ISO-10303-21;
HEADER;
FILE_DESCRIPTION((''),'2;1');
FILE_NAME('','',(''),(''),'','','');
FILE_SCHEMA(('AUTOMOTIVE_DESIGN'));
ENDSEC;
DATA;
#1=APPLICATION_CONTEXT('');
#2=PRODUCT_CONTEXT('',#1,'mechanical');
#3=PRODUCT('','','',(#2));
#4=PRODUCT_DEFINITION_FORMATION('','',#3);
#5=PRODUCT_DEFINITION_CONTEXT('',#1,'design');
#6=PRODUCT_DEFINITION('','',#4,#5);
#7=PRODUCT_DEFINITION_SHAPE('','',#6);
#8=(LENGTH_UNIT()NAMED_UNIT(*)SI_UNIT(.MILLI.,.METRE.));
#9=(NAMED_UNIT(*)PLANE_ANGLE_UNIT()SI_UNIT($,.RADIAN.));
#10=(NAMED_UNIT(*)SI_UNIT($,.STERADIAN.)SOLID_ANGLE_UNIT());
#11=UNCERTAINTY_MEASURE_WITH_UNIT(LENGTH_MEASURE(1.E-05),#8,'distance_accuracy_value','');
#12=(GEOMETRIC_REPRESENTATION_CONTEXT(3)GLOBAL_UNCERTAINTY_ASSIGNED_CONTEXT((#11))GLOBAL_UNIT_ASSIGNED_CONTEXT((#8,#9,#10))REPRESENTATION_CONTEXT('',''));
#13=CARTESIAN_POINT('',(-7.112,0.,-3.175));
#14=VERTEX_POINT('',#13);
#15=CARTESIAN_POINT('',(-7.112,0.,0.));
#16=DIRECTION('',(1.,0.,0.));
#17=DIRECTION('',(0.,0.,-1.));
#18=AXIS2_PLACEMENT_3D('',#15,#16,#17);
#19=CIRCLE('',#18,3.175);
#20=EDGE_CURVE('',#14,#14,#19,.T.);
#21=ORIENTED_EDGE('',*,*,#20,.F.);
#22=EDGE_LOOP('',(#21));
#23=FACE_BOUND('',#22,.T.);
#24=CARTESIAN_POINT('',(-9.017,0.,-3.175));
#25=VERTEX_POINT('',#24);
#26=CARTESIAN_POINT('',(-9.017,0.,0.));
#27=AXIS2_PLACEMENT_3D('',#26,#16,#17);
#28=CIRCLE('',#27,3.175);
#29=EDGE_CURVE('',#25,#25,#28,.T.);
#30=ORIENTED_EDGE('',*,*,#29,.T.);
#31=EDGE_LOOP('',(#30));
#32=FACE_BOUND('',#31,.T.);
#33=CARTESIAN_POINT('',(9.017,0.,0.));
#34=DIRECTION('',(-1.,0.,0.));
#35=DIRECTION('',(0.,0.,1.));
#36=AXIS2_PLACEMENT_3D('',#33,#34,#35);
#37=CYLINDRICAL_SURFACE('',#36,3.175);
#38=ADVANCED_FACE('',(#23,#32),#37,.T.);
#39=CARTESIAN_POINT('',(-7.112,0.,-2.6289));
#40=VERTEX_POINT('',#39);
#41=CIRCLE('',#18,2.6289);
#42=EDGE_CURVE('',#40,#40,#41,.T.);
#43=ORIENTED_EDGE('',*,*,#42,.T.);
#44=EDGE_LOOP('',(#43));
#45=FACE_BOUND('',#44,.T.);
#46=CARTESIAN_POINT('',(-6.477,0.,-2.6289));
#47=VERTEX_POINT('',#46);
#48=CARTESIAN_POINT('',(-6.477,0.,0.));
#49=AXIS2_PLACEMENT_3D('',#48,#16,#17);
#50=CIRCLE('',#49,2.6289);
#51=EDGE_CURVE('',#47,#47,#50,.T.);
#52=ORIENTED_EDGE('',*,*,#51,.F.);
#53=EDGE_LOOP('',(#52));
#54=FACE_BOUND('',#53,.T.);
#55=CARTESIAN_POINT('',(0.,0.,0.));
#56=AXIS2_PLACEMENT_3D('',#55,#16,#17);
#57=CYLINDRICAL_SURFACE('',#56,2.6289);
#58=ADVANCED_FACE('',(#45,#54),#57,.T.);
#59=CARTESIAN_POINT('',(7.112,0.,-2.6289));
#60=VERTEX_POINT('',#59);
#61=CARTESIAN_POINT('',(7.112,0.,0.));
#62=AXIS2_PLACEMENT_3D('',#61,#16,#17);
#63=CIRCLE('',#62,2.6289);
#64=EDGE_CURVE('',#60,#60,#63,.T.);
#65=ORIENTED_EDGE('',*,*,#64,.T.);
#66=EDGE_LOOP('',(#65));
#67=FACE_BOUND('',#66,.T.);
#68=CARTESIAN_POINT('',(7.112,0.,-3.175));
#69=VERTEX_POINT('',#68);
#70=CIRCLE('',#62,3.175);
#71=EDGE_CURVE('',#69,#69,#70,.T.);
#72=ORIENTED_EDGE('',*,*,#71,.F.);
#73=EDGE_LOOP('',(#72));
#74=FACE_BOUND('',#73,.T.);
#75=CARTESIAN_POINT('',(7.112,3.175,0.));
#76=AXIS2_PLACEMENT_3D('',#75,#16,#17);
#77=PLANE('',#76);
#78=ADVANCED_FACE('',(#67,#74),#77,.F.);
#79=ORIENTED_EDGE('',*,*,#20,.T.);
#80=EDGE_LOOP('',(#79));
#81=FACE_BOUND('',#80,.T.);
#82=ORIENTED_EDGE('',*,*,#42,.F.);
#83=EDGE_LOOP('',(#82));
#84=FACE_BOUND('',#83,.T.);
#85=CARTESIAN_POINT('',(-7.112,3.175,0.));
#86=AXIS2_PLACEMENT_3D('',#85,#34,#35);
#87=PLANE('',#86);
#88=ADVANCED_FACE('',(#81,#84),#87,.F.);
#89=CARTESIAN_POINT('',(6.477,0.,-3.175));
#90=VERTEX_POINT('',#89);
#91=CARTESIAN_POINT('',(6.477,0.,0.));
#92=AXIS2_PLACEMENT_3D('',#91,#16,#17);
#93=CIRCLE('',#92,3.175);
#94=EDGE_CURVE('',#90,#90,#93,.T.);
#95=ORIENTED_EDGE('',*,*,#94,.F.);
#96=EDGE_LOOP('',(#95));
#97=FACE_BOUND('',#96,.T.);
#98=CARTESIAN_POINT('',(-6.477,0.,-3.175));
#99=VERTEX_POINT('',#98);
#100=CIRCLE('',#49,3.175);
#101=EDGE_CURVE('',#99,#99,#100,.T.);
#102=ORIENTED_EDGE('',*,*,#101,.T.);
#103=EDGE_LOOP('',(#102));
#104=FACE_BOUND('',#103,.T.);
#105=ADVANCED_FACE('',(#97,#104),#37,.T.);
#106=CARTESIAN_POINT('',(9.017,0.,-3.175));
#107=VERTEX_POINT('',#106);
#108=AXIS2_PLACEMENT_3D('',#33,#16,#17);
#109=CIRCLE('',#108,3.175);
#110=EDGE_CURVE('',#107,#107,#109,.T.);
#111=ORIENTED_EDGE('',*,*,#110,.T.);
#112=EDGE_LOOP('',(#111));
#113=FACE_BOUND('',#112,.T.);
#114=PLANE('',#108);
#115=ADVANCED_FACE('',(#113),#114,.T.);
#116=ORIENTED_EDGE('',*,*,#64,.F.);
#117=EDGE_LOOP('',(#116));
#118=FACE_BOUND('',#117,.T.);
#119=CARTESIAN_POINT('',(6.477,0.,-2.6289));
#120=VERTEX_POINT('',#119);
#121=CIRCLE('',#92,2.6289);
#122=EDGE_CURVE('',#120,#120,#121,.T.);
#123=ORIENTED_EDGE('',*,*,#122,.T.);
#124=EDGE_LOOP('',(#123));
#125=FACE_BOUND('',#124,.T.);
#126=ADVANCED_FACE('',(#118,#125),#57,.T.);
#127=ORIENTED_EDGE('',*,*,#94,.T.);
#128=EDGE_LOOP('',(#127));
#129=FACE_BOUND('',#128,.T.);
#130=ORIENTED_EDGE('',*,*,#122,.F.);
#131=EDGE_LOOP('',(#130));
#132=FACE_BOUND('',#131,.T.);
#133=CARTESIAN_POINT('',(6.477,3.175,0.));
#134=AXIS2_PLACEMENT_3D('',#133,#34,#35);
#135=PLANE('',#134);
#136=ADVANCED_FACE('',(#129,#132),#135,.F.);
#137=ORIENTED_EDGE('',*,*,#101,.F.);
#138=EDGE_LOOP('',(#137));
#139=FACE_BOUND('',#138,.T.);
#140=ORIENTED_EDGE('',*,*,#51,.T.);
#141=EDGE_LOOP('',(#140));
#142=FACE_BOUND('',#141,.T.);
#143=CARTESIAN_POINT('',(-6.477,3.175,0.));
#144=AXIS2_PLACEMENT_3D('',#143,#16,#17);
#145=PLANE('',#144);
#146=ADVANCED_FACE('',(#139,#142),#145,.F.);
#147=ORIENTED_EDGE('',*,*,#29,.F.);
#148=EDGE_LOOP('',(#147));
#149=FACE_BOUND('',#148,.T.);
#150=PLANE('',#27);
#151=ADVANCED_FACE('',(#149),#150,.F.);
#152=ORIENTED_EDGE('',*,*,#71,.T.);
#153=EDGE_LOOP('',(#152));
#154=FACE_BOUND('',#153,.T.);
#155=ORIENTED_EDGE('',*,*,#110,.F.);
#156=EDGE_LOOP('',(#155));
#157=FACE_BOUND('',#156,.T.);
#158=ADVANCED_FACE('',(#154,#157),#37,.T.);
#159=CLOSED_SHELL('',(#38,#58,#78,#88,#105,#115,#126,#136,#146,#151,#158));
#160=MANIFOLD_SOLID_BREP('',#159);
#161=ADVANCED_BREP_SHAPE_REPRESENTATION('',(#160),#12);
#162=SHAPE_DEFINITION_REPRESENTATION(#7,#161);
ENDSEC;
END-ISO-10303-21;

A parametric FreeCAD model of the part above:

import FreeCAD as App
import Part
import Sketcher
from FreeCAD import Vector
Q = App.Units.Quantity


def add_polygon(sketch, points):
    """Adds a closed chain of lines whose ends are joined by coincident constraints."""
    first, n = sketch.GeometryCount, len(points)
    for a, b in zip(points, points[1:] + points[:1]):
        sketch.addGeometry(Part.LineSegment(App.Vector(*a, 0), App.Vector(*b, 0)), False)
    for i in range(n):
        sketch.addConstraint(Sketcher.Constraint("Coincident", first + i, 2, first + (i + 1) % n, 1))

doc = App.newDocument("Part")
params = doc.addObject("Spreadsheet::Sheet", "Params")
for row, (alias, value) in enumerate([
    ("sketch1_diameter", "0.25 in"),
    ("pad1_length", "0.71 in"),
    ("sketch2_width", "0.025 in"),
    ("groove_angle", "360 deg"),
], start=1):
    params.set(f"A{row}", alias)
    params.set(f"B{row}", "=" + value)
    params.setAlias(f"B{row}", alias)

body = doc.addObject("PartDesign::Body", "Body")

# Sketch on YZ plane
sketch1 = body.newObject("Sketcher::SketchObject", "Sketch")
sketch1.AttachmentSupport = (doc.getObject("YZ_Plane"), [""])
sketch1.MapMode = "FlatFace"
sketch1.addGeometry(Part.Circle(Vector(0, 0, 0), Vector(0, 0, 1), 3.175), False)
sketch1.addConstraint(Sketcher.Constraint("Coincident", 0, 3, -1, 1))
sketch1.addConstraint(Sketcher.Constraint("Diameter", 0, Q("0.25 in")))
sketch1.setExpression("Constraints[1]", "Params.sketch1_diameter")
pad1 = body.newObject("PartDesign::Pad", "Pad")
pad1.Profile = sketch1
pad1.setExpression("Length", "Params.pad1_length")
pad1.Midplane = True

# Sketch on XY plane
sketch2 = body.newObject("Sketcher::SketchObject", "Sketch001")
sketch2.AttachmentSupport = (doc.getObject("XY_Plane"), [""])
sketch2.MapMode = "FlatFace"
add_polygon(sketch2, [(-7.112, 3.175), (-7.112, 2.6289), (-6.477, 2.6289), (-6.477, 3.175)])  # lines 0-3
add_polygon(sketch2, [(6.477, 3.175), (6.477, 2.6289), (7.112, 2.6289), (7.112, 3.175)])  # lines 4-7
sketch2.addConstraint(Sketcher.Constraint("Vertical", 0))
sketch2.addConstraint(Sketcher.Constraint("Horizontal", 1))
sketch2.addConstraint(Sketcher.Constraint("Vertical", 2))
sketch2.addConstraint(Sketcher.Constraint("Horizontal", 3))
sketch2.addConstraint(Sketcher.Constraint("Vertical", 4))
sketch2.addConstraint(Sketcher.Constraint("Horizontal", 5))
sketch2.addConstraint(Sketcher.Constraint("Vertical", 6))
sketch2.addConstraint(Sketcher.Constraint("Horizontal", 7))
sketch2.addConstraint(Sketcher.Constraint("Symmetric", 1, 2, 4, 2, -2))
sketch2.addConstraint(Sketcher.Constraint("Symmetric", 3, 2, 6, 2, -2))
sketch2.addConstraint(Sketcher.Constraint("DistanceX", 1, 1, 1, 2, Q("0.025 in")))
sketch2.addConstraint(Sketcher.Constraint("DistanceX", 0, 2, -1, 1, Q("0.28 in")))
sketch2.addConstraint(Sketcher.Constraint("DistanceY", 0, 2, 0, 1, Q("0.0215 in")))
sketch2.addConstraint(Sketcher.Constraint("DistanceY", -1, 1, 2, 2, Q("0.125 in")))
sketch2.setExpression("Constraints[18]", "Params.sketch2_width")
groove = body.newObject("PartDesign::Groove", "Groove")
groove.Profile = sketch2
groove.ReferenceAxis = (sketch2, ["H_Axis"])
groove.setExpression("Angle", "Params.groove_angle")

doc.recompute()
